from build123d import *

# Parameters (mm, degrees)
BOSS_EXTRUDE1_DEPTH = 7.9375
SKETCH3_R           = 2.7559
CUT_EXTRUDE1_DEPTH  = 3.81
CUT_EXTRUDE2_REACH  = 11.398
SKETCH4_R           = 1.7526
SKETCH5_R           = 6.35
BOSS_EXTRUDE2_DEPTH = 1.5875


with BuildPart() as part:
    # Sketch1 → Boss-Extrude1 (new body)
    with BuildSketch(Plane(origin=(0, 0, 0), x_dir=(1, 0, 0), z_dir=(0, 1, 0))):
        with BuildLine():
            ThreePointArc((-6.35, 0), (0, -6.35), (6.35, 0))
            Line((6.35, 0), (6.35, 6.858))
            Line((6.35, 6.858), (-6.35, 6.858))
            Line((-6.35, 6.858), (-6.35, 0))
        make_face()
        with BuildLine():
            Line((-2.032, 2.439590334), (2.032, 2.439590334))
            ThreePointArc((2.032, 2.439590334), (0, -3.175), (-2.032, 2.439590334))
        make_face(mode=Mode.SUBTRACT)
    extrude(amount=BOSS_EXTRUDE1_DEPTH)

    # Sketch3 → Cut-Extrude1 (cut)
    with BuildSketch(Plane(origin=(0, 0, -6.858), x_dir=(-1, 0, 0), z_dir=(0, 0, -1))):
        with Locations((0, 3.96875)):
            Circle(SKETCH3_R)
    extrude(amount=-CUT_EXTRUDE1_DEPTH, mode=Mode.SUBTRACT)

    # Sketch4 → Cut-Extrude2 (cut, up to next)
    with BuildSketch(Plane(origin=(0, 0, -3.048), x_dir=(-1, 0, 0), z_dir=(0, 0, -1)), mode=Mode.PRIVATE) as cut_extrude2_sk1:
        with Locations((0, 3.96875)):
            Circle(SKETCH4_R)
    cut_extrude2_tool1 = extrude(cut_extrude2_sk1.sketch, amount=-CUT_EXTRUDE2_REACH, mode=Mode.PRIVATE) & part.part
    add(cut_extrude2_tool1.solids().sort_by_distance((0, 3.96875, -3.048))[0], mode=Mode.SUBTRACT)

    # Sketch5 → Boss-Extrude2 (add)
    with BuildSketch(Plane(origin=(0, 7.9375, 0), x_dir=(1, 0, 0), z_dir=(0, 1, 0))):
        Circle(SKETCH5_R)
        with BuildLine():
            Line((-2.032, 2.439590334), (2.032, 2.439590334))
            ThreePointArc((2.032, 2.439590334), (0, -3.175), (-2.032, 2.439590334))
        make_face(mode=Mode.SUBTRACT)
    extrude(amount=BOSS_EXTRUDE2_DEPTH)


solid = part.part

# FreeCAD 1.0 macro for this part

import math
import FreeCAD as App
import Part
import Sketcher
Q = App.Units.Quantity

doc = App.newDocument("Part")
body = doc.addObject("PartDesign::Body", "Body")

# Sketch on XZ plane
sketch1 = doc.addObject("Sketcher::SketchObject", "Sketch")
body.addObject(sketch1)
sketch1.AttachmentSupport = (doc.XZ_Plane, [""])
sketch1.MapMode = "FlatFace"
sketch1.addGeometry(Part.ArcOfCircle(Part.Circle(App.Vector(0, 0, 0), App.Vector(0, 0, 1), 6.3), math.radians(0), math.radians(180)), False)
sketch1.addGeometry(Part.LineSegment(App.Vector(6.3, 0, 0), App.Vector(6.3, -6.9, 0)), False)
sketch1.addGeometry(Part.LineSegment(App.Vector(6.3, -6.9, 0), App.Vector(-6.3, -6.9, 0)), False)
sketch1.addGeometry(Part.LineSegment(App.Vector(-6.3, -6.9, 0), App.Vector(-6.3, 0, 0)), False)
sketch1.addGeometry(Part.ArcOfCircle(Part.Circle(App.Vector(0, 0, 0), App.Vector(0, 0, 1), 3.2), math.radians(-50), math.radians(230)), False)
sketch1.addGeometry(Part.LineSegment(App.Vector(-2, -2.4, 0), App.Vector(2, -2.4, 0)), False)
sketch1.addConstraint(Sketcher.Constraint("Tangent", 0, 1, 1, 1))
sketch1.addConstraint(Sketcher.Constraint("Coincident", 1, 2, 2, 1))
sketch1.addConstraint(Sketcher.Constraint("Coincident", 2, 2, 3, 1))
sketch1.addConstraint(Sketcher.Constraint("Tangent", 3, 2, 0, 2))
sketch1.addConstraint(Sketcher.Constraint("Coincident", 4, 1, 5, 2))
sketch1.addConstraint(Sketcher.Constraint("Coincident", 5, 1, 4, 2))
sketch1.addConstraint(Sketcher.Constraint("Vertical", 1))
sketch1.addConstraint(Sketcher.Constraint("Horizontal", 2))
sketch1.addConstraint(Sketcher.Constraint("Vertical", 3))
sketch1.addConstraint(Sketcher.Constraint("Horizontal", 5))
sketch1.addConstraint(Sketcher.Constraint("Coincident", 0, 3, -1, 1))
sketch1.addConstraint(Sketcher.Constraint("Coincident", 4, 3, -1, 1))
sketch1.addConstraint(Sketcher.Constraint("Radius", 0, Q("0.25 in")))
sketch1.addConstraint(Sketcher.Constraint("Radius", 4, Q("0.125 in")))
sketch1.addConstraint(Sketcher.Constraint("DistanceX", 5, 1, 5, 2, Q("0.16 in")))
sketch1.addConstraint(Sketcher.Constraint("DistanceY", 1, 2, 1, 1, Q("0.27 in")))
pad1 = doc.addObject("PartDesign::Pad", "Pad")
body.addObject(pad1)
pad1.Profile = sketch1
pad1.Length = Q("0.3125 in")
pad1.Reversed = True

# Sketch on XY plane
sketch2 = doc.addObject("Sketcher::SketchObject", "Sketch001")
body.addObject(sketch2)
sketch2.AttachmentSupport = (doc.XY_Plane, [""])
sketch2.MapMode = "FlatFace"
sketch2.AttachmentOffset = App.Placement(App.Vector(0, 0, -0.27 * 25.4), App.Rotation())
sketch2.addGeometry(Part.Circle(App.Vector(0, 4, 0), App.Vector(0, 0, 1), 2.8), False)
sketch2.addConstraint(Sketcher.Constraint("PointOnObject", 0, 3, -2))
sketch2.addConstraint(Sketcher.Constraint("Diameter", 0, Q("0.217 in")))
sketch2.addConstraint(Sketcher.Constraint("DistanceY", -1, 1, 0, 3, Q("0.15625 in")))
pocket1 = doc.addObject("PartDesign::Pocket", "Pocket")
body.addObject(pocket1)
pocket1.Profile = sketch2
pocket1.Length = Q("0.15 in")
pocket1.Reversed = True

# Sketch on XY plane
sketch3 = doc.addObject("Sketcher::SketchObject", "Sketch002")
body.addObject(sketch3)
sketch3.AttachmentSupport = (doc.XY_Plane, [""])
sketch3.MapMode = "FlatFace"
sketch3.AttachmentOffset = App.Placement(App.Vector(0, 0, -0.12 * 25.4), App.Rotation())
sketch3.addGeometry(Part.Circle(App.Vector(0, 4, 0), App.Vector(0, 0, 1), 1.8), False)
sketch3.addConstraint(Sketcher.Constraint("PointOnObject", 0, 3, -2))
sketch3.addConstraint(Sketcher.Constraint("Diameter", 0, Q("0.138 in")))
sketch3.addConstraint(Sketcher.Constraint("DistanceY", -1, 1, 0, 3, Q("0.15625 in")))
pocket2 = doc.addObject("PartDesign::Pocket", "Pocket001")
body.addObject(pocket2)
pocket2.Profile = sketch3
pocket2.Type = "UpToFirst"
pocket2.Reversed = True

# Sketch on XZ plane
sketch4 = doc.addObject("Sketcher::SketchObject", "Sketch003")
body.addObject(sketch4)
sketch4.AttachmentSupport = (doc.XZ_Plane, [""])
sketch4.MapMode = "FlatFace"
sketch4.AttachmentOffset = App.Placement(App.Vector(0, 0, -0.3125 * 25.4), App.Rotation())
sketch4.addGeometry(Part.Circle(App.Vector(0, 0, 0), App.Vector(0, 0, 1), 6.3), False)
sketch4.addGeometry(Part.ArcOfCircle(Part.Circle(App.Vector(0, 0, 0), App.Vector(0, 0, 1), 3.2), math.radians(-50), math.radians(230)), False)
sketch4.addGeometry(Part.LineSegment(App.Vector(-2, -2.4, 0), App.Vector(2, -2.4, 0)), False)
sketch4.addConstraint(Sketcher.Constraint("Coincident", 1, 1, 2, 2))
sketch4.addConstraint(Sketcher.Constraint("Coincident", 2, 1, 1, 2))
sketch4.addConstraint(Sketcher.Constraint("Horizontal", 2))
sketch4.addConstraint(Sketcher.Constraint("Coincident", 0, 3, -1, 1))
sketch4.addConstraint(Sketcher.Constraint("Coincident", 1, 3, -1, 1))
sketch4.addConstraint(Sketcher.Constraint("Diameter", 0, Q("0.5 in")))
sketch4.addConstraint(Sketcher.Constraint("Radius", 1, Q("0.125 in")))
sketch4.addConstraint(Sketcher.Constraint("DistanceX", 2, 1, 2, 2, Q("0.16 in")))
pad2 = doc.addObject("PartDesign::Pad", "Pad001")
body.addObject(pad2)
pad2.Profile = sketch4
pad2.Length = Q("0.0625 in")
pad2.Reversed = True

doc.recompute()
